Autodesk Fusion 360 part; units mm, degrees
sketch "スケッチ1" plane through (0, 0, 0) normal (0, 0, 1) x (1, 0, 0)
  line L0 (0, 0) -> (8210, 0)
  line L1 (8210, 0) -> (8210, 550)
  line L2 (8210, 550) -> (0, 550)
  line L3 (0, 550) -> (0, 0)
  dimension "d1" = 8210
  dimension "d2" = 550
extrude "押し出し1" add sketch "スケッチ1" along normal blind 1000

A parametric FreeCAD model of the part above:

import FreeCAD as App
import Part
import Sketcher


def add_polygon(sketch, points):
    """Adds a closed chain of lines whose ends are joined by coincident constraints."""
    first, n = sketch.GeometryCount, len(points)
    for a, b in zip(points, points[1:] + points[:1]):
        sketch.addGeometry(Part.LineSegment(App.Vector(*a, 0), App.Vector(*b, 0)), False)
    for i in range(n):
        sketch.addConstraint(Sketcher.Constraint("Coincident", first + i, 2, first + (i + 1) % n, 1))

doc = App.newDocument("Part")
body = doc.addObject("PartDesign::Body", "Body")

sketch1 = body.newObject("Sketcher::SketchObject", "Sketch")
sketch1.AttachmentSupport = (doc.getObject("XY_Plane"), [""])
sketch1.MapMode = "FlatFace"
add_polygon(sketch1, [(0, 550), (0, 0), (8210, 0), (8210, 550)])
sketch1.addConstraint(Sketcher.Constraint("Vertical", 0))
sketch1.addConstraint(Sketcher.Constraint("Horizontal", 1))
sketch1.addConstraint(Sketcher.Constraint("Vertical", 2))
sketch1.addConstraint(Sketcher.Constraint("Horizontal", 3))
sketch1.addConstraint(Sketcher.Constraint("Coincident", 0, 2, -1, 1))
sketch1.addConstraint(Sketcher.Constraint("DistanceX", 1, 1, 1, 2, 8210.0))
sketch1.addConstraint(Sketcher.Constraint("DistanceY", 0, 2, 0, 1, 550.0))
pad1 = body.newObject("PartDesign::Pad", "Pad")
pad1.Profile = sketch1
pad1.Length = 1000

doc.recompute()
